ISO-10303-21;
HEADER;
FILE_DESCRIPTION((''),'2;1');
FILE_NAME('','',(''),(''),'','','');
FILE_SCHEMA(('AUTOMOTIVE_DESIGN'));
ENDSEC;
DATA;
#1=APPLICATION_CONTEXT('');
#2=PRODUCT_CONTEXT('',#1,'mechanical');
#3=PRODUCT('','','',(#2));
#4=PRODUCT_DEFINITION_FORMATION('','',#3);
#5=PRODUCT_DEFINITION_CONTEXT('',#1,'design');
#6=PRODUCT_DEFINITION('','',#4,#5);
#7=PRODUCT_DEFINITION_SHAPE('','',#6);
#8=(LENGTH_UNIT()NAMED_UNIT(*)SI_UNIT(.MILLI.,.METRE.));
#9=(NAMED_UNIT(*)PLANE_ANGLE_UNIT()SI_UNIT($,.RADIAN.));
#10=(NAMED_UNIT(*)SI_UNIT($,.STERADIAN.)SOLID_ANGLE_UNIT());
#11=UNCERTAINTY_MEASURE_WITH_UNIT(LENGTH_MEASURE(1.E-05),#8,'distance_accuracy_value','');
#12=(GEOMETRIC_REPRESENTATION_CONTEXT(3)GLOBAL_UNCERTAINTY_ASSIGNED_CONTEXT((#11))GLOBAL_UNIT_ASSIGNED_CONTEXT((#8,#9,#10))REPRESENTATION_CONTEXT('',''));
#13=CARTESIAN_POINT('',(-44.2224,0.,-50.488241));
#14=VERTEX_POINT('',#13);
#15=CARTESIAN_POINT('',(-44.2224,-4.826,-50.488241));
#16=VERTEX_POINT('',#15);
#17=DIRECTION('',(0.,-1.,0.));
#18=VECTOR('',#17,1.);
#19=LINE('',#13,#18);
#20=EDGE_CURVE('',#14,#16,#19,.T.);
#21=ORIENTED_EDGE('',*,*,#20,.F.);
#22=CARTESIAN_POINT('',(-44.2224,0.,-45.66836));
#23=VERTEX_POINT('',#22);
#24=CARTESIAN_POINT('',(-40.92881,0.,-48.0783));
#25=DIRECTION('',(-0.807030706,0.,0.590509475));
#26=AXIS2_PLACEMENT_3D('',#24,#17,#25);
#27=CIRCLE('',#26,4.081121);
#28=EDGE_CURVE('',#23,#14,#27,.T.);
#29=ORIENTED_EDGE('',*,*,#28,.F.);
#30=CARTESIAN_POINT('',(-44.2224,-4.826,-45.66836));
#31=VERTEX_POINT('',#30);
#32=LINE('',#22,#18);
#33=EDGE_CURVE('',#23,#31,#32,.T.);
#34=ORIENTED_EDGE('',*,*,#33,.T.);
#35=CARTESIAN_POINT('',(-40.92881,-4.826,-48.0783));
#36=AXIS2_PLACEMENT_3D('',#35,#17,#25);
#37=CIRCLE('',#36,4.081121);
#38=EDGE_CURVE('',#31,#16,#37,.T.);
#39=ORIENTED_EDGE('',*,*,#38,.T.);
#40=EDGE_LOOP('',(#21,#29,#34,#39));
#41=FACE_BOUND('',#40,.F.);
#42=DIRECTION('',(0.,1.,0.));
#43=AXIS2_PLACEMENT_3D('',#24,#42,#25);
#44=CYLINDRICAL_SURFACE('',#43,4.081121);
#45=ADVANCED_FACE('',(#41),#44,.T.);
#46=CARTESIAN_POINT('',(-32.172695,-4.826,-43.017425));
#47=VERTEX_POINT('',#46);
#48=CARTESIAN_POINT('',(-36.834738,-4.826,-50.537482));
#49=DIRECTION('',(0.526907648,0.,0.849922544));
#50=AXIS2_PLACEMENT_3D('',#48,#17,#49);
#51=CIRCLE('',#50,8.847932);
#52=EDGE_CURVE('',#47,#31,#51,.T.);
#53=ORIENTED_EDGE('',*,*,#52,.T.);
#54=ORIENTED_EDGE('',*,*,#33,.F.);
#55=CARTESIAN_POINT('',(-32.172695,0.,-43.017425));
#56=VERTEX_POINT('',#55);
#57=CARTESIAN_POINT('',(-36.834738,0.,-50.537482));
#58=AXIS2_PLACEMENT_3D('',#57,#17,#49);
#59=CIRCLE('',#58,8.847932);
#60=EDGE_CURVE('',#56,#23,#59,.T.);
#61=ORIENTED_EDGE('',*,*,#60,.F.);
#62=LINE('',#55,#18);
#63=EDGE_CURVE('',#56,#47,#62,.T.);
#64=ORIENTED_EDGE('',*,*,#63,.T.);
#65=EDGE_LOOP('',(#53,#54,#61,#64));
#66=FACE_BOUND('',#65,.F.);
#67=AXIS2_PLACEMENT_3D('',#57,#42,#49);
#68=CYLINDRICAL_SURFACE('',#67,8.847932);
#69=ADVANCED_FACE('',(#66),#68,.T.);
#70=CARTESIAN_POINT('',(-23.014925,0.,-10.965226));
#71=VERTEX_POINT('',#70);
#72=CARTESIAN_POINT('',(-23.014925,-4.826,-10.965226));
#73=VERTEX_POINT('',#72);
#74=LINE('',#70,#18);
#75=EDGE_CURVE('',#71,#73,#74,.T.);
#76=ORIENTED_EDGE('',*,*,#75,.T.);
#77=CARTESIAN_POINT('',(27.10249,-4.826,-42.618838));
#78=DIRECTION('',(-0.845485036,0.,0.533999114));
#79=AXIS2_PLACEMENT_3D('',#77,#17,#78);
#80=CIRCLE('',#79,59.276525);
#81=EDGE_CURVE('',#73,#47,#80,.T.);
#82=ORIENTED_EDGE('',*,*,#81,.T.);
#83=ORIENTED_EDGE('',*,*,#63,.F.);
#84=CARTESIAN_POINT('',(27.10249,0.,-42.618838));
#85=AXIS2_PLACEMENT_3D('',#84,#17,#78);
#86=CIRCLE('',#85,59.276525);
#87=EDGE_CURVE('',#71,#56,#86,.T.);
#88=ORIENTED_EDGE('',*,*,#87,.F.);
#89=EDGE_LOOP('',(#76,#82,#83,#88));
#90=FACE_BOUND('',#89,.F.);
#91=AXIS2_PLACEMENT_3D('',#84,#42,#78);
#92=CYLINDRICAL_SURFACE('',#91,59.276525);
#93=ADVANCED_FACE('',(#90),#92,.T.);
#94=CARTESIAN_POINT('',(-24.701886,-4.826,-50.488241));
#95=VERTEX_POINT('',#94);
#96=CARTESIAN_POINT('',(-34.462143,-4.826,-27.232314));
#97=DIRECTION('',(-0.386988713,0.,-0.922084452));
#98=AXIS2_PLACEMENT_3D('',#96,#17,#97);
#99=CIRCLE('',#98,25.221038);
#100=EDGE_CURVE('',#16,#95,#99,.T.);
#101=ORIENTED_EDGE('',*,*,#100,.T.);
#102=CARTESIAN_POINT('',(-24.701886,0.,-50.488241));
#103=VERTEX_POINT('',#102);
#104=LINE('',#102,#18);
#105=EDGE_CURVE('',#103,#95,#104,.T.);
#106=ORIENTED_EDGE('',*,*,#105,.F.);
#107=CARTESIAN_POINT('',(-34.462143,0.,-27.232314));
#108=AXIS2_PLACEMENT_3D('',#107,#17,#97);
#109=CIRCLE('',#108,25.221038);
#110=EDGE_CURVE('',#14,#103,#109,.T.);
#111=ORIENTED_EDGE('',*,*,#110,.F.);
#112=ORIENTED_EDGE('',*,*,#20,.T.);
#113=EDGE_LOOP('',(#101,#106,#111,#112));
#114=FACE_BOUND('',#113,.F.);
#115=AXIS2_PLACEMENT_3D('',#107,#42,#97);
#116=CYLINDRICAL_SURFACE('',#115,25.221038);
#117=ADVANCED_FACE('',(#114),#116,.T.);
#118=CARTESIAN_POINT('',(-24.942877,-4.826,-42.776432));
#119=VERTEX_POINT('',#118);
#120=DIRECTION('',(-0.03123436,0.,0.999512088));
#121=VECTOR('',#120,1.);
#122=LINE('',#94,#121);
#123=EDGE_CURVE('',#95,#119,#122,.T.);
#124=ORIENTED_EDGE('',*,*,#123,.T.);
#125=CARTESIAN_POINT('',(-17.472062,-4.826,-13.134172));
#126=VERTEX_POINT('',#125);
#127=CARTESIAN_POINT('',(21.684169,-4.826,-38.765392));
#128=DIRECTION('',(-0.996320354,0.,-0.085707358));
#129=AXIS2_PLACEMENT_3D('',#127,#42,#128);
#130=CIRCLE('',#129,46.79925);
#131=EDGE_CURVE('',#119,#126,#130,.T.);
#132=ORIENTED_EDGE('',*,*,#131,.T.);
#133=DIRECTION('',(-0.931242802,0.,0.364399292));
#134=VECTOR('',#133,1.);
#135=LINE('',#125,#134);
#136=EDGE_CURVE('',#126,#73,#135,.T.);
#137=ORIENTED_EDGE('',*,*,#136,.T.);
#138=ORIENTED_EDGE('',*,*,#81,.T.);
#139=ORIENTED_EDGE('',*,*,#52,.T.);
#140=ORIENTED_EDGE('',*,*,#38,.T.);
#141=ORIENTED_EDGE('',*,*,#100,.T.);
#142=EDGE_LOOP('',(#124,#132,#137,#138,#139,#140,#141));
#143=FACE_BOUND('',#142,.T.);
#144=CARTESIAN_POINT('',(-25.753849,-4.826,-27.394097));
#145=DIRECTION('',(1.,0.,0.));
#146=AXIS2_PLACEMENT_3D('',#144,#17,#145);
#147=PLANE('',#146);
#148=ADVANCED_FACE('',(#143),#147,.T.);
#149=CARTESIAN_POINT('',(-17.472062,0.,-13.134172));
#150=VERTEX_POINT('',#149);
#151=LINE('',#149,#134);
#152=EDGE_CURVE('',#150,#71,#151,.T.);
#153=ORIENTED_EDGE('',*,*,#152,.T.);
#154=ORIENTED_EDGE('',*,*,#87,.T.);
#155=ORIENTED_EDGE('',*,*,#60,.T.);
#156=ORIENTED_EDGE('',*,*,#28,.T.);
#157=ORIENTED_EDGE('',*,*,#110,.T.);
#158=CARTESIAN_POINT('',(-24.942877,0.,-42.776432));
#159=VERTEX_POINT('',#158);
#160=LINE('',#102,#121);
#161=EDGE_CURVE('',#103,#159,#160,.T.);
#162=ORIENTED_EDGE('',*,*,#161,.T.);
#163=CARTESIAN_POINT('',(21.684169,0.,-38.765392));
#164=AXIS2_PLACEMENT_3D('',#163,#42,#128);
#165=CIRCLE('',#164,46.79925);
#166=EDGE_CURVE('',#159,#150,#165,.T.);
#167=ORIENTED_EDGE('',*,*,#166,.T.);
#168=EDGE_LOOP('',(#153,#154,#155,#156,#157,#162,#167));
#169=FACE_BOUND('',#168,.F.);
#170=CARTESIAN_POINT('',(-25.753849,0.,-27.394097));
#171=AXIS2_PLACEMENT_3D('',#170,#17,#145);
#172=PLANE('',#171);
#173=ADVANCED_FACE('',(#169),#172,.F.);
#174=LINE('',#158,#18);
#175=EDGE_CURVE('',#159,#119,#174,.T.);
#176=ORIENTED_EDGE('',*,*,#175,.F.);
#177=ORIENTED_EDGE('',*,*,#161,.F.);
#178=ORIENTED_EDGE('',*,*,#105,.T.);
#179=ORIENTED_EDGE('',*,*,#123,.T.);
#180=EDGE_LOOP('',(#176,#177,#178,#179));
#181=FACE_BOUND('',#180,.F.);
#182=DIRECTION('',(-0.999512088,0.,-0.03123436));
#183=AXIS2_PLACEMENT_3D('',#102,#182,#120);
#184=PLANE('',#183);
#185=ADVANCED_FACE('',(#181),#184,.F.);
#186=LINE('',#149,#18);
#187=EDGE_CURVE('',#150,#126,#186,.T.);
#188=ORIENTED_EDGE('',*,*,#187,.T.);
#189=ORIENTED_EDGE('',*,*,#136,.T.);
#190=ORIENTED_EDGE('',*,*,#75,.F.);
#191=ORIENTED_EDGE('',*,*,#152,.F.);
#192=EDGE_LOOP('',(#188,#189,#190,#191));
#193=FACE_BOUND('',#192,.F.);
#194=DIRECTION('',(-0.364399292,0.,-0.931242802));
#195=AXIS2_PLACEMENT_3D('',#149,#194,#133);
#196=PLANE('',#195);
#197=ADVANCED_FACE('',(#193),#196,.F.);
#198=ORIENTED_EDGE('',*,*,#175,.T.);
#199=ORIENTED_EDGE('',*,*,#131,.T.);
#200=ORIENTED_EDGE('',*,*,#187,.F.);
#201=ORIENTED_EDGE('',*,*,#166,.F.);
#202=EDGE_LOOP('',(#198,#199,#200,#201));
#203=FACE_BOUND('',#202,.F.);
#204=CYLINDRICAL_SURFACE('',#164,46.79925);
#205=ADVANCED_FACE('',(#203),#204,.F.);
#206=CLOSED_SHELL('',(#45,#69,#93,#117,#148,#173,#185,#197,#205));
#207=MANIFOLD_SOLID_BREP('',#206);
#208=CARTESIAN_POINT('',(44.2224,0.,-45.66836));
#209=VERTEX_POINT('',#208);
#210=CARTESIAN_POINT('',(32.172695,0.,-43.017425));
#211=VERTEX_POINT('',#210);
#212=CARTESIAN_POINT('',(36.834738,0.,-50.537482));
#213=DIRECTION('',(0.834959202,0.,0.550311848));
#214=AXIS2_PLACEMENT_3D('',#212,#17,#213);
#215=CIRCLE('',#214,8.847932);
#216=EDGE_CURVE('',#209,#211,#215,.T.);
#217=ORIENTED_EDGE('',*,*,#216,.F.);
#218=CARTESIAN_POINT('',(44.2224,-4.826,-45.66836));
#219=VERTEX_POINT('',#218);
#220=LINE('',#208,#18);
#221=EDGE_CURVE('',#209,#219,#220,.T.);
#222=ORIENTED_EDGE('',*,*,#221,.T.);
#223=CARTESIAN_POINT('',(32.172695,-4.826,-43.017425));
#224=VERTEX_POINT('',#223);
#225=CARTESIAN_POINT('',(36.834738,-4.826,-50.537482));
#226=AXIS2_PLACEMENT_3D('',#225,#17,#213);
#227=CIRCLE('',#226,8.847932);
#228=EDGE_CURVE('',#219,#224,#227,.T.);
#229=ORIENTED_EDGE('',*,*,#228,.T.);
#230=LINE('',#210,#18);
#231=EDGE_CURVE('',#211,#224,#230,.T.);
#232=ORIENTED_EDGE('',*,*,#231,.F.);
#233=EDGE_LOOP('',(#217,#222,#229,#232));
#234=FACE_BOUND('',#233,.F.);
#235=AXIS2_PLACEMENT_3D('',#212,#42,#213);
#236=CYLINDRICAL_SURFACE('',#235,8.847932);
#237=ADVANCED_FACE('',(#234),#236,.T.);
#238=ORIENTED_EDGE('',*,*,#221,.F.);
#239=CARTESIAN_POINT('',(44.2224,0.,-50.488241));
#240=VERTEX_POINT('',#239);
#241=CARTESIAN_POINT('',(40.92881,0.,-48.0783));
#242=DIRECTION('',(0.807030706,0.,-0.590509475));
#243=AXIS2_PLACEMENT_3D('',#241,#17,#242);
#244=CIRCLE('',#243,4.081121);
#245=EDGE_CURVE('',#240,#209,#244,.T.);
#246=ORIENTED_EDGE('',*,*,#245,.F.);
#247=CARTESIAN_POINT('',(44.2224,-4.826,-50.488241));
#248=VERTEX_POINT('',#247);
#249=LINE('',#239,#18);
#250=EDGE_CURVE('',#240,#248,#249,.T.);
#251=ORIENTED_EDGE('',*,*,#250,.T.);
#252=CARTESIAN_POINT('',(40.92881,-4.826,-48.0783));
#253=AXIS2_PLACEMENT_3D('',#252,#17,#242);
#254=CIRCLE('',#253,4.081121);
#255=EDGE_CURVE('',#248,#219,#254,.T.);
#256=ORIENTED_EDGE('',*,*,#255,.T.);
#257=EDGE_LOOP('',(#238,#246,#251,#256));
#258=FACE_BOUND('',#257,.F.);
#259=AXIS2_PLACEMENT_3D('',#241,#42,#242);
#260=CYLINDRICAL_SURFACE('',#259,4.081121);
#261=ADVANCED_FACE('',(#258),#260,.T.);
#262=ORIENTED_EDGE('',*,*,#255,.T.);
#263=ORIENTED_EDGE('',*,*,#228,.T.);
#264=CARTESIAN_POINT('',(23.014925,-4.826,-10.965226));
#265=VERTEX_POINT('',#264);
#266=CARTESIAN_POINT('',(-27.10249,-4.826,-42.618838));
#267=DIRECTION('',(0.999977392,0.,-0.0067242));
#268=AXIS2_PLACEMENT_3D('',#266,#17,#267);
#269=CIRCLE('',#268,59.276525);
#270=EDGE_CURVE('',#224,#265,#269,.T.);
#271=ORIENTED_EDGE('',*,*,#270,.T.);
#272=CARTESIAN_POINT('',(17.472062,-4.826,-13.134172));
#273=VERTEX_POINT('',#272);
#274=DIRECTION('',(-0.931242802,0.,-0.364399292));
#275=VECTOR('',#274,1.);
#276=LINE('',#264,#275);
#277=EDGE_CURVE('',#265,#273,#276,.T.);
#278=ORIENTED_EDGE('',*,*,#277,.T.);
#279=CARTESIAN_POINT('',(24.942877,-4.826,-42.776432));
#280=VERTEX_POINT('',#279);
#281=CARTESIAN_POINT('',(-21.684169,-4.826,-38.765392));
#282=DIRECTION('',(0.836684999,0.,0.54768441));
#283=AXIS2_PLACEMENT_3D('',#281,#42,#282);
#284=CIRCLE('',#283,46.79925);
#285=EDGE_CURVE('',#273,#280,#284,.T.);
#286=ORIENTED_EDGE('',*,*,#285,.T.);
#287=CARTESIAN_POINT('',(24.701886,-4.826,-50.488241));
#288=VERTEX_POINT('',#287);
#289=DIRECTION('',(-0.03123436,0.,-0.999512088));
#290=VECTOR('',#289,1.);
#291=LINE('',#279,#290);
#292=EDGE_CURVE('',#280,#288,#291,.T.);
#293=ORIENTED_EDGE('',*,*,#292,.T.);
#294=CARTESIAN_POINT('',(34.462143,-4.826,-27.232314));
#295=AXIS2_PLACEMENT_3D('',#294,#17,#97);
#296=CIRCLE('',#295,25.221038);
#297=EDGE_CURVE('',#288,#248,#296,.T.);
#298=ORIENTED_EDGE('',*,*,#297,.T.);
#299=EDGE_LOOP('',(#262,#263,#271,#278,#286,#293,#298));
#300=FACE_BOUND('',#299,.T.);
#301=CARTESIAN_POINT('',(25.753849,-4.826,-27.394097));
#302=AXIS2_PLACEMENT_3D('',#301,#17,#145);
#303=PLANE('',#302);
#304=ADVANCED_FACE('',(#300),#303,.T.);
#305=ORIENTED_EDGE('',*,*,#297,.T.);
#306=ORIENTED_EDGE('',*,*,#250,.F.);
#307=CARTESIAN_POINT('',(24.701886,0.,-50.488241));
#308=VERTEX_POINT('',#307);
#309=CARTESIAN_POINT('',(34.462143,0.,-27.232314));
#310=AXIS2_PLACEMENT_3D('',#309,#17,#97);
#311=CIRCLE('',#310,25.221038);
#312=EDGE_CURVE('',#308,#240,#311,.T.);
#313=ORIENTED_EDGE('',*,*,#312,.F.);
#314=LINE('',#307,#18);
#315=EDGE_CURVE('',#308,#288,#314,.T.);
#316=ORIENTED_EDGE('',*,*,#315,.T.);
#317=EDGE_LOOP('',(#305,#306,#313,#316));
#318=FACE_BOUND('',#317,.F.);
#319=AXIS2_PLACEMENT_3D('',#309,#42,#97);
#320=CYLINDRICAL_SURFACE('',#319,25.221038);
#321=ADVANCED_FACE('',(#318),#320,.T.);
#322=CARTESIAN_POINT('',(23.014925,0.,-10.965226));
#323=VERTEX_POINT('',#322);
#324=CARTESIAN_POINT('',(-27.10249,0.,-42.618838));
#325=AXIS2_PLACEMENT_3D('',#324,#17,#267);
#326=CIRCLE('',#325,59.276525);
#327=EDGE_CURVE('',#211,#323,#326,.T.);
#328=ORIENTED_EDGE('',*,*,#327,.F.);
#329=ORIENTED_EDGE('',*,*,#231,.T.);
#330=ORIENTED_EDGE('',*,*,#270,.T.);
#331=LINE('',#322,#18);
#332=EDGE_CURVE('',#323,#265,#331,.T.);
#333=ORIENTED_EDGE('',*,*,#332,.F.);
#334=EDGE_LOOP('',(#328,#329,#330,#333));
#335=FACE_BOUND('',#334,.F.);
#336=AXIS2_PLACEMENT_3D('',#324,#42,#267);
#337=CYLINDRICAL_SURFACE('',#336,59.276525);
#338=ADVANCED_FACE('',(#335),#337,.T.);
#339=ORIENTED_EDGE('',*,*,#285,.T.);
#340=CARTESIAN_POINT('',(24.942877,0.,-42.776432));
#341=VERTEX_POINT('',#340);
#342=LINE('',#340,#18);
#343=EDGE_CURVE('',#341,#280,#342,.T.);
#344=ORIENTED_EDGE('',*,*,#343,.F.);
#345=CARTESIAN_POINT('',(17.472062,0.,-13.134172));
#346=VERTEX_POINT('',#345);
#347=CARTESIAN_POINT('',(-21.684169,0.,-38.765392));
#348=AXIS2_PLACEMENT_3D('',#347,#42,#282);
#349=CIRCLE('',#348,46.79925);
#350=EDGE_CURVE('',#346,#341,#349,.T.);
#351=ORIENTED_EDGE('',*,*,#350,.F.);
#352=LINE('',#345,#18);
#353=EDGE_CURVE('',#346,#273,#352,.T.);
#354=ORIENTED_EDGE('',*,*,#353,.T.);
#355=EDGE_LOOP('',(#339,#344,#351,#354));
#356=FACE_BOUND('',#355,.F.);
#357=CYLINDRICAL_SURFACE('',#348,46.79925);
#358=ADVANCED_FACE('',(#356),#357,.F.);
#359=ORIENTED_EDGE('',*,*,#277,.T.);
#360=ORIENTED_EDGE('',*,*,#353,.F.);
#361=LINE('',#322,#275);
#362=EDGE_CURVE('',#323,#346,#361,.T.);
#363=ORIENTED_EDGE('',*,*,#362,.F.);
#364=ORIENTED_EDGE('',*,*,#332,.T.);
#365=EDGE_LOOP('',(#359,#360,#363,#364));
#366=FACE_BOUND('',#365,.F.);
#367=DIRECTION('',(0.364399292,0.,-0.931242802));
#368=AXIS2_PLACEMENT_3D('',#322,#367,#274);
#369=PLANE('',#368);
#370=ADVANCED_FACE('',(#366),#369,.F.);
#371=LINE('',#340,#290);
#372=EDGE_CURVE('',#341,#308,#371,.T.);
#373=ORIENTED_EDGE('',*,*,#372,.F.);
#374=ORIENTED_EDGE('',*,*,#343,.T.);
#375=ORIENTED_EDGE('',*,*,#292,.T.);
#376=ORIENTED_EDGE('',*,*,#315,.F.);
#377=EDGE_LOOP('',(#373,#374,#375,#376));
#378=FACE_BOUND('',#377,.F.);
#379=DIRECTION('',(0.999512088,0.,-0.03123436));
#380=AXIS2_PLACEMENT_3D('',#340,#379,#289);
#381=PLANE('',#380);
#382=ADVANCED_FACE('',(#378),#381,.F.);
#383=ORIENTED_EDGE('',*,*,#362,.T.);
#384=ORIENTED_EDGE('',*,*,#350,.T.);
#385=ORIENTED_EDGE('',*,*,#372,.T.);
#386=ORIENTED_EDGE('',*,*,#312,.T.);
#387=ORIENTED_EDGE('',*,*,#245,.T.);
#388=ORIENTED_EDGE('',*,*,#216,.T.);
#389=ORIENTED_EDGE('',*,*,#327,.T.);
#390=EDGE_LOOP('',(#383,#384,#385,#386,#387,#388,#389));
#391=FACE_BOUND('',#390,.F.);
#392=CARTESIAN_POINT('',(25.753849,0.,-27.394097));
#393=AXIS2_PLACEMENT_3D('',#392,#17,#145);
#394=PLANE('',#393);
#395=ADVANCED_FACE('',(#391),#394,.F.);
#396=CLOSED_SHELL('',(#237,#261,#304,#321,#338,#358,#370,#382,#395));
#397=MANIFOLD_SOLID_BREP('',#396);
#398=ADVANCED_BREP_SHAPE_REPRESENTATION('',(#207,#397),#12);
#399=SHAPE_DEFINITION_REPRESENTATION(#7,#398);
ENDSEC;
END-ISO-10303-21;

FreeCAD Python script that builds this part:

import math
import FreeCAD as App
import Part
import Sketcher
from FreeCAD import Vector
Q = App.Units.Quantity

doc = App.newDocument("Part")
body = doc.addObject("PartDesign::Body", "Body")
body.AllowCompound = True

sketch1 = doc.addObject("Sketcher::SketchObject", "Sketch")
body.addObject(sketch1)
sketch1.AttachmentSupport = (doc.XZ_Plane, [""])
sketch1.MapMode = "FlatFace"
sketch1.addGeometry(Part.ArcOfCircle(Part.Circle(Vector(-27.1, -42.6, 0), Vector(0, 0, 1), 59.3), math.radians(0), math.radians(32)), False)
sketch1.addGeometry(Part.LineSegment(Vector(23, -11, 0), Vector(17.5, -13.1, 0)), False)
sketch1.addGeometry(Part.ArcOfCircle(Part.Circle(Vector(-21.7, -38.8, 0), Vector(0, 0, 1), 46.8), math.radians(-5), math.radians(33)), False)
sketch1.addGeometry(Part.LineSegment(Vector(24.9, -42.8, 0), Vector(24.7, -50.5, 0)), False)
sketch1.addGeometry(Part.ArcOfCircle(Part.Circle(Vector(34.5, -27.2, 0), Vector(0, 0, 1), 25.2), math.radians(-113), math.radians(-67)), False)
sketch1.addGeometry(Part.ArcOfCircle(Part.Circle(Vector(40.9, -48.1, 0), Vector(0, 0, 1), 4.1), math.radians(-36), math.radians(36)), False)
sketch1.addGeometry(Part.ArcOfCircle(Part.Circle(Vector(36.8, -50.5, 0), Vector(0, 0, 1), 8.8), math.radians(33), math.radians(122)), False)
sketch1.addGeometry(Part.ArcOfCircle(Part.Circle(Vector(21.7, -38.8, 0), Vector(0, 0, 1), 46.8), math.radians(147), math.radians(185)), False)
sketch1.addGeometry(Part.LineSegment(Vector(-17.5, -13.1, 0), Vector(-23, -11, 0)), False)
sketch1.addGeometry(Part.ArcOfCircle(Part.Circle(Vector(27.1, -42.6, 0), Vector(0, 0, 1), 59.3), math.radians(148), math.radians(180)), False)
sketch1.addGeometry(Part.ArcOfCircle(Part.Circle(Vector(-36.8, -50.5, 0), Vector(0, 0, 1), 8.8), math.radians(58), math.radians(147)), False)
sketch1.addGeometry(Part.ArcOfCircle(Part.Circle(Vector(-40.9, -48.1, 0), Vector(0, 0, 1), 4.1), math.radians(144), math.radians(216)), False)
sketch1.addGeometry(Part.ArcOfCircle(Part.Circle(Vector(-34.5, -27.2, 0), Vector(0, 0, 1), 25.2), math.radians(-113), math.radians(-67)), False)
sketch1.addGeometry(Part.LineSegment(Vector(-24.7, -50.5, 0), Vector(-24.9, -42.8, 0)), False)
sketch1.addConstraint(Sketcher.Constraint("Coincident", 0, 2, 1, 1))
sketch1.addConstraint(Sketcher.Constraint("Coincident", 1, 2, 2, 2))
sketch1.addConstraint(Sketcher.Constraint("Coincident", 2, 1, 3, 1))
sketch1.addConstraint(Sketcher.Constraint("Coincident", 3, 2, 4, 1))
sketch1.addConstraint(Sketcher.Constraint("Coincident", 4, 2, 5, 1))
sketch1.addConstraint(Sketcher.Constraint("Coincident", 5, 2, 6, 1))
sketch1.addConstraint(Sketcher.Constraint("Coincident", 6, 2, 0, 1))
sketch1.addConstraint(Sketcher.Constraint("Coincident", 7, 1, 8, 1))
sketch1.addConstraint(Sketcher.Constraint("Coincident", 8, 2, 9, 1))
sketch1.addConstraint(Sketcher.Constraint("Coincident", 9, 2, 10, 1))
sketch1.addConstraint(Sketcher.Constraint("Coincident", 10, 2, 11, 1))
sketch1.addConstraint(Sketcher.Constraint("Coincident", 11, 2, 12, 1))
sketch1.addConstraint(Sketcher.Constraint("Coincident", 12, 2, 13, 1))
sketch1.addConstraint(Sketcher.Constraint("Coincident", 13, 2, 7, 2))
sketch1.addConstraint(Sketcher.Constraint("Equal", 2, 7))
sketch1.addConstraint(Sketcher.Constraint("Equal", 0, 9))
sketch1.addConstraint(Sketcher.Constraint("Equal", 6, 10))
sketch1.addConstraint(Sketcher.Constraint("Equal", 5, 11))
sketch1.addConstraint(Sketcher.Constraint("Equal", 4, 12))
sketch1.addConstraint(Sketcher.Constraint("Symmetric", 2, 3, 7, 3, -2))
sketch1.addConstraint(Sketcher.Constraint("Symmetric", 0, 3, 9, 3, -2))
sketch1.addConstraint(Sketcher.Constraint("Symmetric", 6, 3, 10, 3, -2))
sketch1.addConstraint(Sketcher.Constraint("Symmetric", 5, 3, 11, 3, -2))
sketch1.addConstraint(Sketcher.Constraint("Symmetric", 4, 3, 12, 3, -2))
sketch1.addConstraint(Sketcher.Constraint("Horizontal", 3, 2, 4, 2))
sketch1.addConstraint(Sketcher.Constraint("Horizontal", 1, 2, 7, 1))
sketch1.addConstraint(Sketcher.Constraint("Horizontal", 0, 2, 8, 2))
sketch1.addConstraint(Sketcher.Constraint("Horizontal", 11, 2, 12, 2))
sketch1.addConstraint(Sketcher.Constraint("Horizontal", 2, 1, 13, 2))
sketch1.addConstraint(Sketcher.Constraint("Vertical", 4, 2, 5, 2))
sketch1.addConstraint(Sketcher.Constraint("Radius", 2, 46.79925))
sketch1.addConstraint(Sketcher.Constraint("Radius", 5, 4.081121))
sketch1.addConstraint(Sketcher.Constraint("Radius", 6, 8.847932))
sketch1.addConstraint(Sketcher.Constraint("Radius", 0, 59.276525))
sketch1.addConstraint(Sketcher.Constraint("Radius", 4, 25.221038))
sketch1.addConstraint(Sketcher.Constraint("DistanceY", 5, 3, -1, 1, 48.0783))
sketch1.addConstraint(Sketcher.Constraint("DistanceX", -1, 1, 4, 2, 44.2224))
sketch1.addConstraint(Sketcher.Constraint("DistanceX", 0, 3, 5, 3, 68.0313))
sketch1.addConstraint(Sketcher.Constraint("DistanceX", 0, 3, -1, 1, 27.10249))
sketch1.addConstraint(Sketcher.Constraint("DistanceX", 2, 3, -1, 1, 21.684169))
sketch1.addConstraint(Sketcher.Constraint("DistanceY", 2, 3, -1, 1, 38.765392))
sketch1.addConstraint(Sketcher.Constraint("DistanceY", 6, 3, -1, 1, 50.537482))
sketch1.addConstraint(Sketcher.Constraint("DistanceX", 7, 1, -1, 1, 17.472062))
sketch1.addConstraint(Sketcher.Constraint("DistanceX", 2, 3, 4, 3, 56.146312))
sketch1.addConstraint(Sketcher.Constraint("DistanceX", 0, 2, 4, 3, 11.447218))
sketch1.addConstraint(Sketcher.Constraint("DistanceY", 4, 3, 0, 2, 16.267088))
sketch1.addConstraint(Sketcher.Constraint("DistanceX", 7, 3, 2, 1, 3.258708))
pad1 = doc.addObject("PartDesign::Pad", "Pad")
body.addObject(pad1)
pad1.Profile = sketch1
pad1.Length = Q("0.19 in")

doc.recompute()
